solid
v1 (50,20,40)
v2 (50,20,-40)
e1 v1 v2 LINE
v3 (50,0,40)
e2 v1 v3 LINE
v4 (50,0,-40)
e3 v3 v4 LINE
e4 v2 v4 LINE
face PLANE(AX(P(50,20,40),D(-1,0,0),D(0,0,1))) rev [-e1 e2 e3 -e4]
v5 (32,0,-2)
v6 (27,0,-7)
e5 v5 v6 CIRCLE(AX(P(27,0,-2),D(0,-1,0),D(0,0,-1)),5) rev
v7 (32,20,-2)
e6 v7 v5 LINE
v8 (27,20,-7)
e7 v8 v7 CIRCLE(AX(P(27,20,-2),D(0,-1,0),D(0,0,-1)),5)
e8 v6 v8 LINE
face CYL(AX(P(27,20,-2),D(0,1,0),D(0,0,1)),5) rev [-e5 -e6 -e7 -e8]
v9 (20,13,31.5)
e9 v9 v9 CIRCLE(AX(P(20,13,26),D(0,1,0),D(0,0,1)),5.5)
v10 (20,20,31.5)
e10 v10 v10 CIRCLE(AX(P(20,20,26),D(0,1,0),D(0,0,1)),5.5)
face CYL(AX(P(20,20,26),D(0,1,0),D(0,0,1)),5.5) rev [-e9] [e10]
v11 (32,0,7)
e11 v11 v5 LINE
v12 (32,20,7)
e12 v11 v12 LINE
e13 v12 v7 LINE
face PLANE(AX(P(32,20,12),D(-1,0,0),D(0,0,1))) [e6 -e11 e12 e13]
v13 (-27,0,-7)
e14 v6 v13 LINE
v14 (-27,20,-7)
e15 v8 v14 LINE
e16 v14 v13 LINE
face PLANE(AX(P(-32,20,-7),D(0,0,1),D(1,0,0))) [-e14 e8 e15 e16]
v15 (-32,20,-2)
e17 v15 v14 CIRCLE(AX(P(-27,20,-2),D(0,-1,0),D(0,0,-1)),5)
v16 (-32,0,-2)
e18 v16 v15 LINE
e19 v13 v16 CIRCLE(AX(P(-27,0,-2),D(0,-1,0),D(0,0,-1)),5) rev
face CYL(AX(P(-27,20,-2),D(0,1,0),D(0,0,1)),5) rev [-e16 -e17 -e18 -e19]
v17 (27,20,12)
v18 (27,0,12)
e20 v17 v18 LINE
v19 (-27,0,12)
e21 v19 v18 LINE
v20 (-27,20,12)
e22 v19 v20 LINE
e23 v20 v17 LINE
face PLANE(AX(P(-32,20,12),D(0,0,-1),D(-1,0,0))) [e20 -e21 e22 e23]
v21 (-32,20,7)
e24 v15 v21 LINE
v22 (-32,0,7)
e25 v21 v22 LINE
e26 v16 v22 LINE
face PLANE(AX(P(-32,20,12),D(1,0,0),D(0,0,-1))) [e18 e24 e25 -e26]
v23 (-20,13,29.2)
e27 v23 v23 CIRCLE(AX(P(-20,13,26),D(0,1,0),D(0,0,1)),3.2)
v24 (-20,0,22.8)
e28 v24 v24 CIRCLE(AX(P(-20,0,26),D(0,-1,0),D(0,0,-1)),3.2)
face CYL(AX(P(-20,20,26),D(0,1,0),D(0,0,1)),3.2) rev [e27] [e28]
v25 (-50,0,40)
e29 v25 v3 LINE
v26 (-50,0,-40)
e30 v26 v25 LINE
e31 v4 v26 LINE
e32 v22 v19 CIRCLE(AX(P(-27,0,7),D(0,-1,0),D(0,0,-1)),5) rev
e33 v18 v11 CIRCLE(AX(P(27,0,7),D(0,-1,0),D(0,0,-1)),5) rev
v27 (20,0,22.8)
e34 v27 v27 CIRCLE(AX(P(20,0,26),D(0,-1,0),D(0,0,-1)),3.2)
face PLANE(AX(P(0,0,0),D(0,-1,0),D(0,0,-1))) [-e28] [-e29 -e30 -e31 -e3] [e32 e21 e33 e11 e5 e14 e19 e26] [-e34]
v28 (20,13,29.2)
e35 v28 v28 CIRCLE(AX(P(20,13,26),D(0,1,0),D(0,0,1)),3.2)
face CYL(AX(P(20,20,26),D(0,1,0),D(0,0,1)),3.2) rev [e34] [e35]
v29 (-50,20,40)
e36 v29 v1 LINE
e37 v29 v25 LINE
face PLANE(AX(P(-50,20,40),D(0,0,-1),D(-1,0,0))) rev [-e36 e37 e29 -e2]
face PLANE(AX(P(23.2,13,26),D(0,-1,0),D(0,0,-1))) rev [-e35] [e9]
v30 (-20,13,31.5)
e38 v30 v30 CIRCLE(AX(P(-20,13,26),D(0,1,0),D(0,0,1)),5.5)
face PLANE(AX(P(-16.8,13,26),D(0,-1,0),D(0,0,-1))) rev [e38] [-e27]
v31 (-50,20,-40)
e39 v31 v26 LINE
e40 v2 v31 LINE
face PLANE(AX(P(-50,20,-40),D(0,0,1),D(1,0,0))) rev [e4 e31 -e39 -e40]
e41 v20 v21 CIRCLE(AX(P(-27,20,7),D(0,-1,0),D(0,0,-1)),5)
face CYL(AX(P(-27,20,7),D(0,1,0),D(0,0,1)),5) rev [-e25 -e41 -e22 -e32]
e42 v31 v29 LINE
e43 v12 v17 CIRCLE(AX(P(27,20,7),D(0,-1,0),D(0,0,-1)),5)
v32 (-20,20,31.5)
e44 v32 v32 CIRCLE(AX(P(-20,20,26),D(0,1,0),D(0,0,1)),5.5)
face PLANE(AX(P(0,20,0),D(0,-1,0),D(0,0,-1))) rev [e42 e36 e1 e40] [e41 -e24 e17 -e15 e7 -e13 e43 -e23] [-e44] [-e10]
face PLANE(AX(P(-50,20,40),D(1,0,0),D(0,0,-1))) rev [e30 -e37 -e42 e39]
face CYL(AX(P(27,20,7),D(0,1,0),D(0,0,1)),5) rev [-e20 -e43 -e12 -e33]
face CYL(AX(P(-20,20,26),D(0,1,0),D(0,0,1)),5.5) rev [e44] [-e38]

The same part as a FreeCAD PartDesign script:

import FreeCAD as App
import Part
import Sketcher


def edges_at(feature, points):
    """Names of the edges that pass closest to the given points."""
    edges = feature.Shape.Edges
    near = lambda p: min(range(len(edges)), key=lambda i: edges[i].distToShape(Part.Vertex(*p))[0])
    return sorted({f"Edge{near(p) + 1}" for p in points})


def add_polygon(sketch, points):
    """Adds a closed chain of lines whose ends are joined by coincident constraints."""
    first, n = sketch.GeometryCount, len(points)
    for a, b in zip(points, points[1:] + points[:1]):
        sketch.addGeometry(Part.LineSegment(App.Vector(*a, 0), App.Vector(*b, 0)), False)
    for i in range(n):
        sketch.addConstraint(Sketcher.Constraint("Coincident", first + i, 2, first + (i + 1) % n, 1))

doc = App.newDocument("Part")
body = doc.addObject("PartDesign::Body", "Body")

# Sketch on XZ plane
sketch1 = body.newObject("Sketcher::SketchObject", "Sketch")
sketch1.AttachmentSupport = (doc.getObject("XZ_Plane"), [""])
sketch1.MapMode = "FlatFace"
add_polygon(sketch1, [(-50, -40), (-50, 40), (50, 40), (50, -40)])  # lines 0-3
add_polygon(sketch1, [(32, 12), (-32, 12), (-32, -7), (32, -7)])  # lines 4-7
sketch1.addConstraint([
    Sketcher.Constraint("Vertical", 0),
    Sketcher.Constraint("Horizontal", 1),
    Sketcher.Constraint("Vertical", 2),
    Sketcher.Constraint("Horizontal", 3),
    Sketcher.Constraint("Horizontal", 4),
    Sketcher.Constraint("Vertical", 5),
    Sketcher.Constraint("Horizontal", 6),
    Sketcher.Constraint("Vertical", 7),
    Sketcher.Constraint("Symmetric", 0, 2, 2, 2, -1, 1),
    Sketcher.Constraint("DistanceX", 1, 1, 1, 2, 100.0),
    Sketcher.Constraint("DistanceX", 4, 2, 4, 1, 64.0),
    Sketcher.Constraint("DistanceY", 0, 1, 0, 2, 80.0),
    Sketcher.Constraint("DistanceY", 5, 2, 5, 1, 19.0),
    Sketcher.Constraint("DistanceX", 4, 2, -1, 1, 32.0),
    Sketcher.Constraint("DistanceY", -1, 1, 4, 2, 12.0),
])
pad1 = body.newObject("PartDesign::Pad", "Pad")
pad1.Profile = sketch1
pad1.Length = 20
pad1.Reversed = True
doc.recompute()

fillet = body.newObject("PartDesign::Fillet", "Fillet")
fillet.Base = (pad1, edges_at(pad1, [
    (-32, 10, -7),
    (-32, 10, 12),
    (32, 10, 12),
    (32, 10, -7),
]))
fillet.Radius = 5

# Sketch on XZ plane
sketch2 = body.newObject("Sketcher::SketchObject", "Sketch001")
sketch2.AttachmentSupport = (doc.getObject("XZ_Plane"), [""])
sketch2.MapMode = "FlatFace"
sketch2.AttachmentOffset = App.Placement(App.Vector(0, 0, -20), App.Rotation())
sketch2.addGeometry([
    Part.Circle(App.Vector(20, 26, 0), App.Vector(0, 0, 1), 3.2),
    Part.Circle(App.Vector(-20, 26, 0), App.Vector(0, 0, 1), 3.2),
], False)
sketch2.addConstraint([
    Sketcher.Constraint("Equal", 0, 1),
    Sketcher.Constraint("Symmetric", 0, 3, 1, 3, -2),
    Sketcher.Constraint("Diameter", 0, 6.4),
    Sketcher.Constraint("DistanceX", -1, 1, 0, 3, 20.0),
    Sketcher.Constraint("DistanceY", -1, 1, 0, 3, 26.0),
])
doc.recompute()
hole = body.newObject("PartDesign::Hole", "Hole")
hole.Profile = sketch2
hole.ThreadType = "None"
hole.Diameter = 6.4
hole.DepthType = "Dimension"
hole.Depth = 100
hole.DrillPoint = "Flat"
hole.HoleCutType = "Counterbore"
hole.HoleCutDiameter = 11
hole.HoleCutDepth = 7
hole.Reversed = True

doc.recompute()
